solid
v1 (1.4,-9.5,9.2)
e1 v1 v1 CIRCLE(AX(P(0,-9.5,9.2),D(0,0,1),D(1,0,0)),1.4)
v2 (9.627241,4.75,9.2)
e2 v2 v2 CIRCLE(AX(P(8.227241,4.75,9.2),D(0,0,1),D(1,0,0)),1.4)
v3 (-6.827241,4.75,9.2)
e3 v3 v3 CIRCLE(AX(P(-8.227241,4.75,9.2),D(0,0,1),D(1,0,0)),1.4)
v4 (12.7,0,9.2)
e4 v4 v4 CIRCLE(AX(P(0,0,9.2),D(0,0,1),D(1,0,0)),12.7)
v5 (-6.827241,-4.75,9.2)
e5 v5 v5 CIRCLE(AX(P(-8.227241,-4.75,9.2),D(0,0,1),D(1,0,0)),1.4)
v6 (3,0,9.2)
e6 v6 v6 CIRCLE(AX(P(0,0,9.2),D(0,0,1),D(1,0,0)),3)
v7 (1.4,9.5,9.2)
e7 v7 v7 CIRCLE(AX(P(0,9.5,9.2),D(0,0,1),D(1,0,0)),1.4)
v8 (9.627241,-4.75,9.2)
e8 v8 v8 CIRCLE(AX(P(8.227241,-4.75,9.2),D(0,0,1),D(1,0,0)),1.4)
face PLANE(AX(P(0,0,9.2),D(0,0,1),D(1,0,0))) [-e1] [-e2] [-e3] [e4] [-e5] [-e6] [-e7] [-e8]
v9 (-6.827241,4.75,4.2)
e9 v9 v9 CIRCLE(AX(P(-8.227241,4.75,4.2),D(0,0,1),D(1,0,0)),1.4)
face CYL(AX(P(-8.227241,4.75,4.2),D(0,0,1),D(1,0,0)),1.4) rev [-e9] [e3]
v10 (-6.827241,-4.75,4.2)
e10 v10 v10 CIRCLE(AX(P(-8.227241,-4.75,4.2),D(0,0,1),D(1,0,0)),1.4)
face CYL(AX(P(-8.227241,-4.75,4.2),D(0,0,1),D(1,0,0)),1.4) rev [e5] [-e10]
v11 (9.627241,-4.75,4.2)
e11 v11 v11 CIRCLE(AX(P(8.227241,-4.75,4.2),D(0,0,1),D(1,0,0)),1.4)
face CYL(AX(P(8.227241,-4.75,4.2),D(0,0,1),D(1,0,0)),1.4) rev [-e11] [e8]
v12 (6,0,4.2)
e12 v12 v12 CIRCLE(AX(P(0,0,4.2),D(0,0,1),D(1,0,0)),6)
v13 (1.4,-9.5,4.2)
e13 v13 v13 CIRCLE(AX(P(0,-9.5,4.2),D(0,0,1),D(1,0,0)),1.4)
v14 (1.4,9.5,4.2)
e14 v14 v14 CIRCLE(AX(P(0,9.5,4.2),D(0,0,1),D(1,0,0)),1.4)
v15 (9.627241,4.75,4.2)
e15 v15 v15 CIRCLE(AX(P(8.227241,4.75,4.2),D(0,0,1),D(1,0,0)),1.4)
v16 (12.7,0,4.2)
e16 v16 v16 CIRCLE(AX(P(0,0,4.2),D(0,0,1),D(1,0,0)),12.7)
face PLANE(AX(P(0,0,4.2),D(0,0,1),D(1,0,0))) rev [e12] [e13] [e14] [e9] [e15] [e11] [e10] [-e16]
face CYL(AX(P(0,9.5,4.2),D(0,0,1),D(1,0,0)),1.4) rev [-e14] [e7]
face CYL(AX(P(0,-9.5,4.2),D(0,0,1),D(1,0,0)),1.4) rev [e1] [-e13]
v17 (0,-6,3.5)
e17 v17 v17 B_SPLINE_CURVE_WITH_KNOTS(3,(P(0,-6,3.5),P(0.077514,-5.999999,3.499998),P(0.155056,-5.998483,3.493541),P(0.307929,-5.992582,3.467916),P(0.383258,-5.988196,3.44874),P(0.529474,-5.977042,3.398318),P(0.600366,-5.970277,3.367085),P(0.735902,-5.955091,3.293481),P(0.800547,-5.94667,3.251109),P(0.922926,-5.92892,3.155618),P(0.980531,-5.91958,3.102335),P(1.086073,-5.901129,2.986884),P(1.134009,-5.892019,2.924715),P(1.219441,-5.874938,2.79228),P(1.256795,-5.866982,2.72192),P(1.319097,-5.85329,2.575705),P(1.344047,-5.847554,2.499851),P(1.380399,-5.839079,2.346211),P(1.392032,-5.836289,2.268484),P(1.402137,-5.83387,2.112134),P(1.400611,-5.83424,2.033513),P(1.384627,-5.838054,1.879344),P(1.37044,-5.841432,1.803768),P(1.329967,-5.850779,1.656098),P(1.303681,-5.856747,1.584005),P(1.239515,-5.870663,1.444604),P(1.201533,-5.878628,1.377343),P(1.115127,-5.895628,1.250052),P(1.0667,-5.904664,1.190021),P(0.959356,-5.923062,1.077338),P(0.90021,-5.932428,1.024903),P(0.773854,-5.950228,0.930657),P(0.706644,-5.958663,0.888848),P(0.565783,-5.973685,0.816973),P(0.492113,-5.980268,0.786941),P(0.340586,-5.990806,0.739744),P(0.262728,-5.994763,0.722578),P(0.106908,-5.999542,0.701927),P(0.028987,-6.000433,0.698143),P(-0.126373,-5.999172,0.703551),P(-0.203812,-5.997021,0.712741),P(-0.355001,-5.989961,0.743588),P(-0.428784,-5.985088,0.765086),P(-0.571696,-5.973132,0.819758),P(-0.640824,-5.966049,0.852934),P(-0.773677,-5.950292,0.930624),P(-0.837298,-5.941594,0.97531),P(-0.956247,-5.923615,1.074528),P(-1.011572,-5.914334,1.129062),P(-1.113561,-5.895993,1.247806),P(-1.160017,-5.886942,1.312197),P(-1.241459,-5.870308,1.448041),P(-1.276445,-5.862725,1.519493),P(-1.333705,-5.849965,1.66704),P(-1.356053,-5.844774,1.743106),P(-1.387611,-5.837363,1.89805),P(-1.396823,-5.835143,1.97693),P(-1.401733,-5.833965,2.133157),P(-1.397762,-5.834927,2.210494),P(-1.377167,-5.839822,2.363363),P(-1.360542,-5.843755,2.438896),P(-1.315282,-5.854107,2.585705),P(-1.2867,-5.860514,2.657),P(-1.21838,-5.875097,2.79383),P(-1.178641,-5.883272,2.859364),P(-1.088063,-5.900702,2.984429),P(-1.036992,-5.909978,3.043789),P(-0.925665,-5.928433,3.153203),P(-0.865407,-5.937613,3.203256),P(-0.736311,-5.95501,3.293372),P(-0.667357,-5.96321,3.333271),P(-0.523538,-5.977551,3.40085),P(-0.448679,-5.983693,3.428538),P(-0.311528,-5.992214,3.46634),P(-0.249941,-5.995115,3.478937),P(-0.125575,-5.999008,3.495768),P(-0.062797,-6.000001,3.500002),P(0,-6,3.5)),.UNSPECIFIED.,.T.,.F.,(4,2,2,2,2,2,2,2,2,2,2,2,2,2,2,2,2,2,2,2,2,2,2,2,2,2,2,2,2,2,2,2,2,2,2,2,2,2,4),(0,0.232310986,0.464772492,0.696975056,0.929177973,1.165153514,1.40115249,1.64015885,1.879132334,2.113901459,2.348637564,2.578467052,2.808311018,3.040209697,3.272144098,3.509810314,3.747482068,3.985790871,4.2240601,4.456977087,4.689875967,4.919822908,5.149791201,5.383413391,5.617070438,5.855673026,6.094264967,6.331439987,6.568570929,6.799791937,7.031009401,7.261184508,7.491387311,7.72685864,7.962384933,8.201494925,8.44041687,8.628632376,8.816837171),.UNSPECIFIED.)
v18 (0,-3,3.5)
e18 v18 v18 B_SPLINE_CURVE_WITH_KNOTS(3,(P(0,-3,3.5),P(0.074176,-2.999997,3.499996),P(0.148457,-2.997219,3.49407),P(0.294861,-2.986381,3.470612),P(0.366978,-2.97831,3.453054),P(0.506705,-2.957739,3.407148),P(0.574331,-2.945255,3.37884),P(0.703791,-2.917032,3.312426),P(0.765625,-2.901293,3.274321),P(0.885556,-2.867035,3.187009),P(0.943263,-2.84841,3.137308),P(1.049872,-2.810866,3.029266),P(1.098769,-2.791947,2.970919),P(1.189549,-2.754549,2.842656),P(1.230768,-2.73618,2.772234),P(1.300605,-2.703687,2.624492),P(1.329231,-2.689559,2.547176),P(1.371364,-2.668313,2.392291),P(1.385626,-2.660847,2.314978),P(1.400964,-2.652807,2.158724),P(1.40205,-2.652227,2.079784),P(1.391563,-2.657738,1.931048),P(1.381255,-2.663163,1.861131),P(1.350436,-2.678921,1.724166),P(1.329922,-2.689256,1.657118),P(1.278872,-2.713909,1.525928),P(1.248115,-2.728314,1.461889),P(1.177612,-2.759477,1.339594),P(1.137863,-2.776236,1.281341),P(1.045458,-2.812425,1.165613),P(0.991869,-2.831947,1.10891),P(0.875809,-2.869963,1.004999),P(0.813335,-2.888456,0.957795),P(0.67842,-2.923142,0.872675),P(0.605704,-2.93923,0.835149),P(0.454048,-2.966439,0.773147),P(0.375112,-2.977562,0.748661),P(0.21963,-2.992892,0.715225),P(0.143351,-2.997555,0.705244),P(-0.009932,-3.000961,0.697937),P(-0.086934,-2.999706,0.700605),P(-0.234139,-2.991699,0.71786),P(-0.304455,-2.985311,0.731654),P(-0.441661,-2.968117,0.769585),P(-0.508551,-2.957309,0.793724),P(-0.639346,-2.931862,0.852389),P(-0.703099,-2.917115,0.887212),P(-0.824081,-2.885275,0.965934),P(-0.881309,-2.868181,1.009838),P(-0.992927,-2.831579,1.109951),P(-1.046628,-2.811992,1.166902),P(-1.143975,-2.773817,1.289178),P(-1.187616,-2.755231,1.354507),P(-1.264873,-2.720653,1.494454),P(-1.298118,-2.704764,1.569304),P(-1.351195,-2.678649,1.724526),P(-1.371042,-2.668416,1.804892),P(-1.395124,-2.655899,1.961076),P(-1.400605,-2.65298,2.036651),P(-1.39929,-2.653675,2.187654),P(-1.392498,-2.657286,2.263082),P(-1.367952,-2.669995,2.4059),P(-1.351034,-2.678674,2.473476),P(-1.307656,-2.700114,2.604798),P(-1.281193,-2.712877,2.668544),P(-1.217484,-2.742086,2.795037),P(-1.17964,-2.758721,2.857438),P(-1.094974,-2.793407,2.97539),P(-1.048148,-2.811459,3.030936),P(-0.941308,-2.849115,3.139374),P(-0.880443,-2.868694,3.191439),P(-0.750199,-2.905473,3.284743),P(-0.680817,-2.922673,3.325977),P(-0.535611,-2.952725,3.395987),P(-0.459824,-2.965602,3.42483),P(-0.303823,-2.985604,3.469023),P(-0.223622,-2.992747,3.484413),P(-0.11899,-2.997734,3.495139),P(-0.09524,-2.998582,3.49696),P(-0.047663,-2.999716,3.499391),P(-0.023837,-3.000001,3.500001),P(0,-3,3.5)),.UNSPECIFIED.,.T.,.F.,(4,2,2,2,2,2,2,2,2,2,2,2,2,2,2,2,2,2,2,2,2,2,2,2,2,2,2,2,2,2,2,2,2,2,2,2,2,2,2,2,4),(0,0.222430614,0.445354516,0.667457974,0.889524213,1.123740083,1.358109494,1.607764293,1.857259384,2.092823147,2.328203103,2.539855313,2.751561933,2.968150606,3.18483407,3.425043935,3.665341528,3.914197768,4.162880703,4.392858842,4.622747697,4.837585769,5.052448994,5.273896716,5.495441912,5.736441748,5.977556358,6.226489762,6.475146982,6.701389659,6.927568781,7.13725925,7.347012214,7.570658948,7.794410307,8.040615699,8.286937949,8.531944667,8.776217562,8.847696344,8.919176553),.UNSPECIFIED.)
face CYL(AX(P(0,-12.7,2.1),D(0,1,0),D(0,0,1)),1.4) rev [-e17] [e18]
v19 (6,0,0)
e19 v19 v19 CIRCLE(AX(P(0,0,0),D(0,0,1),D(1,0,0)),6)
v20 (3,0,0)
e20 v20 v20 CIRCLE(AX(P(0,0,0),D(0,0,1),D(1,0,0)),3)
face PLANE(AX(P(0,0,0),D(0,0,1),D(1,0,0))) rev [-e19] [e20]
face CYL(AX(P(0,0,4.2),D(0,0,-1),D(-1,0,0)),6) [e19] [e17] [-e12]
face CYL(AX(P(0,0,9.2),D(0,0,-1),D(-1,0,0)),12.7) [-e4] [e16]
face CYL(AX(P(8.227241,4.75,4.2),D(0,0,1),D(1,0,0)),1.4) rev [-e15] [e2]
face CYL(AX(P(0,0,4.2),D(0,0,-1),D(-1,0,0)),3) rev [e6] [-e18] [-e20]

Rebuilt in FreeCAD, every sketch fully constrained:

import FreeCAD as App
import Part
import Sketcher

V = App.Vector

doc = App.newDocument("Part")
body = doc.addObject("PartDesign::Body", "Body")

# Sketch on XY plane
sketch1 = body.newObject("Sketcher::SketchObject", "Sketch")
sketch1.AttachmentSupport = (doc.getObject("XY_Plane"), [""])
sketch1.MapMode = "FlatFace"
sketch1.addGeometry([
    Part.Circle(V(0, 0, 0), V(0, 0, 1), 6),
    Part.Circle(V(0, 0, 0), V(0, 0, 1), 3),
], False)
sketch1.addConstraint([
    Sketcher.Constraint("Coincident", 0, 3, -1, 1),
    Sketcher.Constraint("Coincident", 1, 3, -1, 1),
    Sketcher.Constraint("Diameter", 0, 12.0),
    Sketcher.Constraint("Diameter", 1, 6.0),
])
pad1 = body.newObject("PartDesign::Pad", "Pad")
pad1.Profile = sketch1
pad1.Length = 4.2

# Sketch on XY plane
sketch2 = body.newObject("Sketcher::SketchObject", "Sketch001")
sketch2.AttachmentSupport = (doc.getObject("XY_Plane"), [""])
sketch2.MapMode = "FlatFace"
sketch2.AttachmentOffset = App.Placement(V(0, 0, 4.2), App.Rotation())
sketch2.addGeometry([
    Part.Circle(V(0, 0, 0), V(0, 0, 1), 12.7),
    Part.Circle(V(0, 0, 0), V(0, 0, 1), 3),
], False)
sketch2.addConstraint([
    Sketcher.Constraint("Coincident", 0, 3, -1, 1),
    Sketcher.Constraint("Coincident", 1, 3, -1, 1),
    Sketcher.Constraint("Diameter", 1, 6.0),
    Sketcher.Constraint("Diameter", 0, 25.4),
])
pad2 = body.newObject("PartDesign::Pad", "Pad001")
pad2.Profile = sketch2
pad2.Length = 5

# Sketch on XZ plane
sketch3 = body.newObject("Sketcher::SketchObject", "Sketch002")
sketch3.AttachmentSupport = (doc.getObject("XZ_Plane"), [""])
sketch3.MapMode = "FlatFace"
sketch3.addGeometry(Part.Circle(V(0, 2.1, 0), V(0, 0, 1), 1.4), False)
sketch3.addConstraint([
    Sketcher.Constraint("PointOnObject", 0, 3, -2),
    Sketcher.Constraint("Diameter", 0, 2.8),
    Sketcher.Constraint("DistanceY", -1, 1, 0, 3, 2.1),
])
pocket1 = body.newObject("PartDesign::Pocket", "Pocket")
pocket1.Profile = sketch3
pocket1.Type = "ThroughAll"
pocket1.Reversed = True

# Sketch on XY plane
sketch4 = body.newObject("Sketcher::SketchObject", "Sketch003")
sketch4.AttachmentSupport = (doc.getObject("XY_Plane"), [""])
sketch4.MapMode = "FlatFace"
sketch4.AttachmentOffset = App.Placement(V(0, 0, 9.2), App.Rotation())
sketch4.addGeometry([
    Part.Circle(V(0, 9.5, 0), V(0, 0, 1), 1.4),  # 0
    Part.Circle(V(8.2, 4.8, 0), V(0, 0, 1), 1.4),  # 1
    Part.Circle(V(8.2, -4.8, 0), V(0, 0, 1), 1.4),  # 2
    Part.Circle(V(0, -9.5, 0), V(0, 0, 1), 1.4),  # 3
    Part.Circle(V(-8.2, -4.8, 0), V(0, 0, 1), 1.4),  # 4
    Part.Circle(V(-8.2, 4.8, 0), V(0, 0, 1), 1.4),  # 5
], False)
sketch4.addConstraint([
    Sketcher.Constraint("Equal", 0, 1),
    Sketcher.Constraint("Equal", 1, 2),
    Sketcher.Constraint("Equal", 2, 3),
    Sketcher.Constraint("Equal", 3, 4),
    Sketcher.Constraint("Equal", 4, 5),
    Sketcher.Constraint("Symmetric", 0, 3, 3, 3, -1, 1),
    Sketcher.Constraint("Symmetric", 1, 3, 4, 3, -1, 1),
    Sketcher.Constraint("Symmetric", 2, 3, 5, 3, -1, 1),
    Sketcher.Constraint("Symmetric", 2, 3, 4, 3, -2),
    Sketcher.Constraint("PointOnObject", 0, 3, -2),
    Sketcher.Constraint("Diameter", 0, 2.8),
    Sketcher.Constraint("DistanceY", 3, 3, 0, 3, 19.0),
    Sketcher.Constraint("DistanceY", 2, 3, 1, 3, 9.5),
    Sketcher.Constraint("DistanceX", -1, 1, 1, 3, 8.227241),
])
pocket2 = body.newObject("PartDesign::Pocket", "Pocket001")
pocket2.Profile = sketch4
pocket2.Length = 5

doc.recompute()
